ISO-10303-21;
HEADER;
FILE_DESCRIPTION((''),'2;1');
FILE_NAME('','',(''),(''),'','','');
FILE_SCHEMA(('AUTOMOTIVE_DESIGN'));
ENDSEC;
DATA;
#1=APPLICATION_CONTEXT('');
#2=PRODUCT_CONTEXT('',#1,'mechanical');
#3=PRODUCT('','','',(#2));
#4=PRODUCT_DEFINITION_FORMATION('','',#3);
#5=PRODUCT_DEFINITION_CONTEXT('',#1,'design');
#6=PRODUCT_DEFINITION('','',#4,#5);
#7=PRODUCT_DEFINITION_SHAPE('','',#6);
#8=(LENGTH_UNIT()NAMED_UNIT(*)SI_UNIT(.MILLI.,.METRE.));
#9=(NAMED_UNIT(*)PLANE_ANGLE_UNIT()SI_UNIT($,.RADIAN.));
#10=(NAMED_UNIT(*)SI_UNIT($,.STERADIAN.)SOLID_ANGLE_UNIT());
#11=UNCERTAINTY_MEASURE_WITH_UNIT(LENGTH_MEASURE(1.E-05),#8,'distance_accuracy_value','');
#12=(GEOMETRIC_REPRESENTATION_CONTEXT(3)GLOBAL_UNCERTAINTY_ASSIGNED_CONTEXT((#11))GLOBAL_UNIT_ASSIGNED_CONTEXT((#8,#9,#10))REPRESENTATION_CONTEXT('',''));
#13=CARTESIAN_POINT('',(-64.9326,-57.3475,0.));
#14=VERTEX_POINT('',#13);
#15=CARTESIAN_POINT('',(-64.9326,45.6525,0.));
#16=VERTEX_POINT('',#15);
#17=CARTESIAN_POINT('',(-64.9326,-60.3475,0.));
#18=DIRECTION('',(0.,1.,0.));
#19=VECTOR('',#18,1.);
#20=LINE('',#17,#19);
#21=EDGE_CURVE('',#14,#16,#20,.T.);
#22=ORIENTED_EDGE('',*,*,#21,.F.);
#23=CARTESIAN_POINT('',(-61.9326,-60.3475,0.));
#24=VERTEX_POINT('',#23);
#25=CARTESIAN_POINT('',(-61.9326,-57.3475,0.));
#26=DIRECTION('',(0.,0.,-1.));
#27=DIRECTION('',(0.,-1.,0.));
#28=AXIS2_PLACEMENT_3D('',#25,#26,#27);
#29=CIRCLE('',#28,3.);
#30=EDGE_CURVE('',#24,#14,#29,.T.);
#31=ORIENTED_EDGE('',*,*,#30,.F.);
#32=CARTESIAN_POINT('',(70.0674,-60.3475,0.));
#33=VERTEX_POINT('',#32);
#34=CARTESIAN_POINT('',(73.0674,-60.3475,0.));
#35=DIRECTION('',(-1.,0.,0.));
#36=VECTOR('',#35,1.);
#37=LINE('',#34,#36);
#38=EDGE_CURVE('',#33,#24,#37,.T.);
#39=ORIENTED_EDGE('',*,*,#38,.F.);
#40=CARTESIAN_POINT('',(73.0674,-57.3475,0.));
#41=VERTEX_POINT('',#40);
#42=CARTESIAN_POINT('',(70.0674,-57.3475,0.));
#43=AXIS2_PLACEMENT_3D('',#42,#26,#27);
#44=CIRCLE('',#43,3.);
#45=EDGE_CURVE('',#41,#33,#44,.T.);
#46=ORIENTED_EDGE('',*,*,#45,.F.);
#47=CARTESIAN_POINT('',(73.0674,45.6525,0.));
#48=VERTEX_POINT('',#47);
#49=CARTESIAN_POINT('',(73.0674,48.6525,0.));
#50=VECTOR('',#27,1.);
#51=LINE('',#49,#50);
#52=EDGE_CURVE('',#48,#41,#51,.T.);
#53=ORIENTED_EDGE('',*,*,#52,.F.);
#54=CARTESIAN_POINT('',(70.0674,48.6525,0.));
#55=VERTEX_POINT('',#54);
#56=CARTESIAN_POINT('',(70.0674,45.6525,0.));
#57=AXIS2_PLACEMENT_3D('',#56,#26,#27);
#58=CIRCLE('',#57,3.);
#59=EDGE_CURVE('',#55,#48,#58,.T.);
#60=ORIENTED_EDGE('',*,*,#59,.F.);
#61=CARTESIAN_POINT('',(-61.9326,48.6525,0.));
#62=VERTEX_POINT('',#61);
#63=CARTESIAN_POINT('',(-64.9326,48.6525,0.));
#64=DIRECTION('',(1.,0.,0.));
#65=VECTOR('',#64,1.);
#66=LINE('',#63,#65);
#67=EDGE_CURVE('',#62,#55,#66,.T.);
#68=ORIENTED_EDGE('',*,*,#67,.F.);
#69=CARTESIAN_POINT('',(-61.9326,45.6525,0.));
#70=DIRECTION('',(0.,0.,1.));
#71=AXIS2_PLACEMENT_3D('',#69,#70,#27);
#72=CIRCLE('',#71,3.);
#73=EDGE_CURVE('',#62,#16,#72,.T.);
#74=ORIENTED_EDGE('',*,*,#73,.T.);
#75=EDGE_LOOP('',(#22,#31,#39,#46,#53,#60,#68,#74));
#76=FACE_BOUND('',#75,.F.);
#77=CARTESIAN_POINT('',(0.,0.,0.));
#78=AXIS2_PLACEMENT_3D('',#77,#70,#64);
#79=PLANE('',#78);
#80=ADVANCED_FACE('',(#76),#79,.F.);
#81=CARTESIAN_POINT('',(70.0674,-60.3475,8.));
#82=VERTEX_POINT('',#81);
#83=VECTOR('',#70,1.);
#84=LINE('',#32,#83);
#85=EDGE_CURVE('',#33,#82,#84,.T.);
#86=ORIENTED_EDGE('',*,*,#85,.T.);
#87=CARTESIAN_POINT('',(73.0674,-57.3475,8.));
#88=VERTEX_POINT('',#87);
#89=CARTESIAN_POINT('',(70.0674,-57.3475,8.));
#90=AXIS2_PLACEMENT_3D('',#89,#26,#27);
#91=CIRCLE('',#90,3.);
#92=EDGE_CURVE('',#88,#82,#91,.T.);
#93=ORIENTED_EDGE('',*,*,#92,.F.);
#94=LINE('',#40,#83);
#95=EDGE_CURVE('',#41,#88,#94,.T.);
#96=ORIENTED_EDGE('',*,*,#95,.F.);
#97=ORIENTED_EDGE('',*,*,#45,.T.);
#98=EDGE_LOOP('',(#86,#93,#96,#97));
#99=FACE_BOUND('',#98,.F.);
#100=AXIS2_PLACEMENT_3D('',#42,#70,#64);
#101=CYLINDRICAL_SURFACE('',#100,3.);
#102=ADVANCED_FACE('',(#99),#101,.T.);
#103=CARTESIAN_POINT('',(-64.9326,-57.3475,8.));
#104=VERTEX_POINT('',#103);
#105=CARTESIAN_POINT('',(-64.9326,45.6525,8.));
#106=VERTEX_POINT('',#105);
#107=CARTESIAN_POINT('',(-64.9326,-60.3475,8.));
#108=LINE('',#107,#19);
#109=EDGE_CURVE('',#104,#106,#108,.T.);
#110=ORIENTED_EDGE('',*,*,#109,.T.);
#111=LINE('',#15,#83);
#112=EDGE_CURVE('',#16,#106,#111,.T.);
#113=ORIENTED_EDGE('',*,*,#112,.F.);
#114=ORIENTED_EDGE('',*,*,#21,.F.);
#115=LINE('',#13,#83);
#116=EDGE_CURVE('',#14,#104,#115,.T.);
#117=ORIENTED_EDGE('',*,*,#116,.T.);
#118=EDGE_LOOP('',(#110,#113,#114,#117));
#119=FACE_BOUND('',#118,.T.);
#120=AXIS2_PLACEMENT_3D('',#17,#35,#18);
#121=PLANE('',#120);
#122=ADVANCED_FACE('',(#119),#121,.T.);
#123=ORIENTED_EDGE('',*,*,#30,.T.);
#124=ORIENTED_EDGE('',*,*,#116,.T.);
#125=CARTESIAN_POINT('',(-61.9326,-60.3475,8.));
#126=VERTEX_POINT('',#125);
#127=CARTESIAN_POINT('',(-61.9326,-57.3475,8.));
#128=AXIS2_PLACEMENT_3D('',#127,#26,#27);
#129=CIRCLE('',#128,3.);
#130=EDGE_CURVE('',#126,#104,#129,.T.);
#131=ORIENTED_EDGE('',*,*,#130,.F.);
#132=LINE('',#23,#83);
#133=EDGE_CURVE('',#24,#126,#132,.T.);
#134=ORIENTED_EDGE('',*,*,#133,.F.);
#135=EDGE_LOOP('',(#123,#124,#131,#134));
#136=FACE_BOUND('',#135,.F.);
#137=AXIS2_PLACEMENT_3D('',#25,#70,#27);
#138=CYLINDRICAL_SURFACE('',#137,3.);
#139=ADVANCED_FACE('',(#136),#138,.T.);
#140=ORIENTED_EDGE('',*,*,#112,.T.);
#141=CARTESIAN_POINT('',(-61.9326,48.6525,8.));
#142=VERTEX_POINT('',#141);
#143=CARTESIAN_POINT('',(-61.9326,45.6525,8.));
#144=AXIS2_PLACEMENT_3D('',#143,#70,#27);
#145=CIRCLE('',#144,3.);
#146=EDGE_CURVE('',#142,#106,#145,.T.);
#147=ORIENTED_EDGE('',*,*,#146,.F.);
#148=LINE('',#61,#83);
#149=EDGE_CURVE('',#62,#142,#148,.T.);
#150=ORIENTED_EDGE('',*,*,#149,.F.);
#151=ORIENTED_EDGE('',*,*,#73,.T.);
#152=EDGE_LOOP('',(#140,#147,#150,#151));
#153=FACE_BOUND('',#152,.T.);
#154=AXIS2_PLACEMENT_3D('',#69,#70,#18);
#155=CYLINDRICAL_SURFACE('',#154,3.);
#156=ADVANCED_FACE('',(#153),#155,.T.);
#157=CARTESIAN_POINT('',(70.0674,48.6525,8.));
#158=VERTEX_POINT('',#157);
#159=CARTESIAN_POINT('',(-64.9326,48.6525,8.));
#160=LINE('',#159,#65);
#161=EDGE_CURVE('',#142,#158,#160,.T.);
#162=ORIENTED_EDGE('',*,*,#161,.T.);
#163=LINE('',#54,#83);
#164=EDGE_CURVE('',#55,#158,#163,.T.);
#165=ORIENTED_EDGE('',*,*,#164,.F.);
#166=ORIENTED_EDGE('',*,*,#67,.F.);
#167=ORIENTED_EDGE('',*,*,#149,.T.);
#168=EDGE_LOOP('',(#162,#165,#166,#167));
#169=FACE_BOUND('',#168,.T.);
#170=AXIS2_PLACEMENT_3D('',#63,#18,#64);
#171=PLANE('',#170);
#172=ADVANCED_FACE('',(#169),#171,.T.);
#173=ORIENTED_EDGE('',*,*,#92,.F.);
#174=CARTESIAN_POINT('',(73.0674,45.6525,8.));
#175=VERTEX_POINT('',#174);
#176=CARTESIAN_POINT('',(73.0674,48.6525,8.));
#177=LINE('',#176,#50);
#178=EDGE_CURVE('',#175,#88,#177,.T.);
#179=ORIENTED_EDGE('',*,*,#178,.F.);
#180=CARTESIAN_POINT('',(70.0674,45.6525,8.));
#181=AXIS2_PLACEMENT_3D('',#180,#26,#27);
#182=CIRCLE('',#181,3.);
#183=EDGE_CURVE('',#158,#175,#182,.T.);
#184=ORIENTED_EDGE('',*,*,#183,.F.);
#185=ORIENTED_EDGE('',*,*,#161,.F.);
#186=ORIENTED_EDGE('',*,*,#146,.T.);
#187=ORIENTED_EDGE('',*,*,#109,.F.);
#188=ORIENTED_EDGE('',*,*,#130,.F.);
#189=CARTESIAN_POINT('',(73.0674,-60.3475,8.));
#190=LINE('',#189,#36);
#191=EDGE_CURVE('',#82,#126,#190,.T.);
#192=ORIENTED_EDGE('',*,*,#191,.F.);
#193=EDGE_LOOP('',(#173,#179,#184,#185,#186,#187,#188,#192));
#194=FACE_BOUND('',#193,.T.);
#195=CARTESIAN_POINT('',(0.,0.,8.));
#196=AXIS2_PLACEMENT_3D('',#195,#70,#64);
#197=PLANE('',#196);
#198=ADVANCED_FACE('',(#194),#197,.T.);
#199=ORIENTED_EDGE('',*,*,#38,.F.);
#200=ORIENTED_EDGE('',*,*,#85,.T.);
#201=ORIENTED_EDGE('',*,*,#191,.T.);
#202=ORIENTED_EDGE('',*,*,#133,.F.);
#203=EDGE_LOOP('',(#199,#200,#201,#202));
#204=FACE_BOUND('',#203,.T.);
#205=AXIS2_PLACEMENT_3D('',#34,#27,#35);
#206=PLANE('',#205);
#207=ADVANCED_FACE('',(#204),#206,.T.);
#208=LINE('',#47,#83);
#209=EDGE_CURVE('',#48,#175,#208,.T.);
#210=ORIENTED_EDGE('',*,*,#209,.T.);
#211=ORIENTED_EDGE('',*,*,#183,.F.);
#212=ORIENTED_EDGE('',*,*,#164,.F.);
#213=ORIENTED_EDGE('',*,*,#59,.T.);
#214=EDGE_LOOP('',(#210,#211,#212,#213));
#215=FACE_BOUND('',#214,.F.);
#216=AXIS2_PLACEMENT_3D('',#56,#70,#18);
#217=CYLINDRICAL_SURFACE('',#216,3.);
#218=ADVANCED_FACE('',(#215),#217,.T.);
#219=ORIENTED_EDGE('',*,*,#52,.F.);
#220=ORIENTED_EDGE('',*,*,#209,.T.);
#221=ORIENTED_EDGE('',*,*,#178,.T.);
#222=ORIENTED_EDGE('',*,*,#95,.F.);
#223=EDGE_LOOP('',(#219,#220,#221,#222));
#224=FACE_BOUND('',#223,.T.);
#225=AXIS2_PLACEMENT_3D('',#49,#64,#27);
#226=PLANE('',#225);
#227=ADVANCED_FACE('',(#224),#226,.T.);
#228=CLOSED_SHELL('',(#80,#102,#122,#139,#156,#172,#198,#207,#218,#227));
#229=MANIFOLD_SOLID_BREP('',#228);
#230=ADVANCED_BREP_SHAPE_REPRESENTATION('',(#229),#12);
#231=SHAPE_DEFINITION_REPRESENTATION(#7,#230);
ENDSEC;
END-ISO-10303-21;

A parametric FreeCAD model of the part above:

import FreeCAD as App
import Part
import Sketcher
from FreeCAD import Vector
Q = App.Units.Quantity


def edges_at(feature, points):
    """Names of the edges that pass closest to the given points."""
    edges = feature.Shape.Edges
    near = lambda p: min(range(len(edges)), key=lambda i: edges[i].distToShape(Part.Vertex(*p))[0])
    return sorted({f"Edge{near(p) + 1}" for p in points})

doc = App.newDocument("Part")
body = doc.addObject("PartDesign::Body", "Body")

# Sketch on XY plane
sketch1 = body.newObject("Sketcher::SketchObject", "Sketch")
sketch1.AttachmentSupport = (doc.getObject("XY_Plane"), [""])
sketch1.MapMode = "FlatFace"
sketch1.addGeometry([
    Part.LineSegment(Vector(73, 49, 0), Vector(-65, 49, 0)),
    Part.LineSegment(Vector(-65, 49, 0), Vector(-65, -60, 0)),
    Part.LineSegment(Vector(-65, -60, 0), Vector(73, -60, 0)),
    Part.LineSegment(Vector(73, -60, 0), Vector(73, 49, 0)),
], False)
sketch1.addConstraint([
    Sketcher.Constraint("Coincident", 0, 2, 1, 1),
    Sketcher.Constraint("Coincident", 1, 2, 2, 1),
    Sketcher.Constraint("Coincident", 2, 2, 3, 1),
    Sketcher.Constraint("Coincident", 3, 2, 0, 1),
    Sketcher.Constraint("Horizontal", 0),
    Sketcher.Constraint("Vertical", 1),
    Sketcher.Constraint("Horizontal", 2),
    Sketcher.Constraint("Vertical", 3),
    Sketcher.Constraint("DistanceX", 0, 2, 0, 1, Q("138 mm")),
    Sketcher.Constraint("DistanceY", 1, 2, 1, 1, Q("109 mm")),
    Sketcher.Constraint("DistanceX", 0, 2, -1, 1, Q("64.9326 mm")),
    Sketcher.Constraint("DistanceY", -1, 1, 0, 2, Q("48.6525 mm")),
])
pad1 = body.newObject("PartDesign::Pad", "Pad")
pad1.Profile = sketch1
pad1.Length = 8
doc.recompute()

fillet = body.newObject("PartDesign::Fillet", "Fillet")
fillet.Base = (pad1, edges_at(pad1, [
    (73.067, 48.653, 4),
    (-64.933, 48.653, 4),
    (73.067, -60.347, 4),
    (-64.933, -60.347, 4),
]))
fillet.Radius = 3

doc.recompute()
